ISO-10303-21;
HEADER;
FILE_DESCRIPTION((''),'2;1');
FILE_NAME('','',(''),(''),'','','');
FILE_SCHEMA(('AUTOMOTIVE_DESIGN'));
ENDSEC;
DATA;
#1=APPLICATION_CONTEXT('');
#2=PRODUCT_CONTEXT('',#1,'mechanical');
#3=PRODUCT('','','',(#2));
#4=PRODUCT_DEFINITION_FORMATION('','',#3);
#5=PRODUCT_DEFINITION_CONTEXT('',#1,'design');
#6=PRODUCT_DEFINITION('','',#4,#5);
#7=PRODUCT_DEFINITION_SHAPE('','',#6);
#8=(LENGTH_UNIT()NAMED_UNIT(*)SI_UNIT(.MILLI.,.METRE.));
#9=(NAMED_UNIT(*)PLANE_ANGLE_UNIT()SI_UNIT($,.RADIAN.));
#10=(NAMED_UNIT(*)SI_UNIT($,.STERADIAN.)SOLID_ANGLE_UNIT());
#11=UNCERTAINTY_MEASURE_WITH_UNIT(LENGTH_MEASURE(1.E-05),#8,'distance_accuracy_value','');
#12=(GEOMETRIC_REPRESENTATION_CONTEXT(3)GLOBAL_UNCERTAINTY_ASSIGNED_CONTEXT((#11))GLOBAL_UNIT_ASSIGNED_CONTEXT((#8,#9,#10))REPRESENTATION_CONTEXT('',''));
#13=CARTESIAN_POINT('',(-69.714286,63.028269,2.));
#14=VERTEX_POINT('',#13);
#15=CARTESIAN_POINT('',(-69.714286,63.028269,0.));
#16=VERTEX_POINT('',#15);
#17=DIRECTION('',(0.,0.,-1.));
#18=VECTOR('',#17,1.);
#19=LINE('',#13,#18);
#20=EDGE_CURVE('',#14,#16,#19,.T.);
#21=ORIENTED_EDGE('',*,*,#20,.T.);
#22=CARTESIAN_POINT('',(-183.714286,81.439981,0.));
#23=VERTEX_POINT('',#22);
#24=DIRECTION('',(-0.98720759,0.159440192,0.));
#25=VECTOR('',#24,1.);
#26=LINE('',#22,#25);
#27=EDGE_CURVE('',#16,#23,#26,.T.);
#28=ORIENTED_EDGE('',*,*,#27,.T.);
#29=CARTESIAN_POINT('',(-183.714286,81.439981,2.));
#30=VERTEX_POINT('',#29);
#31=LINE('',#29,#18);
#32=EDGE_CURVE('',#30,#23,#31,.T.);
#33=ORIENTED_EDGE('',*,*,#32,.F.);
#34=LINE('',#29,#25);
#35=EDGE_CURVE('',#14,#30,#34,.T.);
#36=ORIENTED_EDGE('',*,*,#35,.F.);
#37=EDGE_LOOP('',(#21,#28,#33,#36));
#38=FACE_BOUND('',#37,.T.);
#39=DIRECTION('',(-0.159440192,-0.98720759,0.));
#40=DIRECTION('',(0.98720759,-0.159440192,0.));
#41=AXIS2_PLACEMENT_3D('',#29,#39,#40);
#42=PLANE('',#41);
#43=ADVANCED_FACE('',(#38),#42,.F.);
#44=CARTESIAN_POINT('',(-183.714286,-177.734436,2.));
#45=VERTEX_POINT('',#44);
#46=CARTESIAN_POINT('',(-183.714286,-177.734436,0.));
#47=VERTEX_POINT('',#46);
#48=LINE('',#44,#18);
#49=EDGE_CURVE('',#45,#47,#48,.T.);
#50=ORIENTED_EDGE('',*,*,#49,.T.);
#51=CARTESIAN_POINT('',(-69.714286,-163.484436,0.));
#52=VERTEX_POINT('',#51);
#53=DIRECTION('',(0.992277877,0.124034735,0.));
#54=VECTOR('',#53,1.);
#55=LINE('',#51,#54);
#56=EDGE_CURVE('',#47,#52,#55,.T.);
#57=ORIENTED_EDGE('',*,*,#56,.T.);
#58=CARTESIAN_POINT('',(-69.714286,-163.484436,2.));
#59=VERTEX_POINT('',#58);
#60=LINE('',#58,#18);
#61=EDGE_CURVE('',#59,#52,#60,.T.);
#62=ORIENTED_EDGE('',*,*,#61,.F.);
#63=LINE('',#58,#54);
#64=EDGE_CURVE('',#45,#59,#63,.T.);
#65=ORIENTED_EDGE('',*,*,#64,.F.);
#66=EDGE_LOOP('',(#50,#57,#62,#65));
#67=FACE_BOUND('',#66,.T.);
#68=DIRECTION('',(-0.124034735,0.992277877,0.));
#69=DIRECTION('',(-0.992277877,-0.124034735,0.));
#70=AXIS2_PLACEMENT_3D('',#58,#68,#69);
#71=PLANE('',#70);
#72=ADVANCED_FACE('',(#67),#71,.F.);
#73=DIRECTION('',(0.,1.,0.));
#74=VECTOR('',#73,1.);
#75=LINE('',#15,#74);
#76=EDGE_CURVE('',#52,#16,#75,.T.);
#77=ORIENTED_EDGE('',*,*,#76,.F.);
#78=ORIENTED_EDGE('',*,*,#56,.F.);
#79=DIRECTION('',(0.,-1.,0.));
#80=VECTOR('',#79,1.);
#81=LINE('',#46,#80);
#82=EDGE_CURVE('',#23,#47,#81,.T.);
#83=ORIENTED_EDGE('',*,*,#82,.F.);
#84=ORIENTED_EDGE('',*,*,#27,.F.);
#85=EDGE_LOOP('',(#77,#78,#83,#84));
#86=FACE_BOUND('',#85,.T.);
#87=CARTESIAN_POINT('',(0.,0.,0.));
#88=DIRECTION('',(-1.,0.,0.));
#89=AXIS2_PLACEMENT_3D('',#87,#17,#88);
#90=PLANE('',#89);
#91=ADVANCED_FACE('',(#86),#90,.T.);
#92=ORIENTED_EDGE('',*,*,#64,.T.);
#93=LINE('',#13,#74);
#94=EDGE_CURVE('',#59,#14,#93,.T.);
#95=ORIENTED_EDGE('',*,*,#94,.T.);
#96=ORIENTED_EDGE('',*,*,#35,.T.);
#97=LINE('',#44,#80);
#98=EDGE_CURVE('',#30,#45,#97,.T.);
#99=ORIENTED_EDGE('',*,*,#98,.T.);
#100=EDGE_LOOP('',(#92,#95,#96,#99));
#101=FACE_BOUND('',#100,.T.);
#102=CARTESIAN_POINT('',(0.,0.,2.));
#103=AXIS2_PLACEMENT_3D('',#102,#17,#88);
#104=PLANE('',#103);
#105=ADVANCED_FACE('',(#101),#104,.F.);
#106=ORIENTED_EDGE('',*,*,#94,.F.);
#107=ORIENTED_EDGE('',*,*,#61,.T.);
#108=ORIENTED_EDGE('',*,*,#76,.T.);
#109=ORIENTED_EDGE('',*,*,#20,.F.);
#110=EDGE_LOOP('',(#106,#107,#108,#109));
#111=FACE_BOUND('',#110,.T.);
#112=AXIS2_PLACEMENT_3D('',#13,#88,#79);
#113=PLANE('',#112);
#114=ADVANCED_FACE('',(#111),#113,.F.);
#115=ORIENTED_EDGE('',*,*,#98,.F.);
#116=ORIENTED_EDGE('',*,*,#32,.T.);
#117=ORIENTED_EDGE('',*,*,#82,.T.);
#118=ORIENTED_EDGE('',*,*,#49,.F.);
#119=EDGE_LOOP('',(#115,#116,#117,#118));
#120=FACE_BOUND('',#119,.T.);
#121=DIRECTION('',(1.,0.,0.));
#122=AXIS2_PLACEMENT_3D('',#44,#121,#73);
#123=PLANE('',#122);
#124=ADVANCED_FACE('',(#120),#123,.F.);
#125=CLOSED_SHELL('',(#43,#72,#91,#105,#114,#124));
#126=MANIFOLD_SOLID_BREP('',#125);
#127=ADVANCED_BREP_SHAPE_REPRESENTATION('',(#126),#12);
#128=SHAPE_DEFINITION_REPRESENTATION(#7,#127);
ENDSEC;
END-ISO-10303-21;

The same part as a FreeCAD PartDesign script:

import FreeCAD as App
import Part
import Sketcher

V = App.Vector
Q = App.Units.Quantity

doc = App.newDocument("Part")
body = doc.addObject("PartDesign::Body", "Body")

# Sketch on XY plane
sketch1 = body.newObject("Sketcher::SketchObject", "Sketch")
sketch1.AttachmentSupport = (doc.getObject("XY_Plane"), [""])
sketch1.MapMode = "FlatFace"
sketch1.addGeometry([
    Part.LineSegment(V(-69.714286, -163.484436, 0), V(-69.714286, 63.028269, 0)),
    Part.LineSegment(V(-69.714286, 63.028269, 0), V(-183.714286, 81.439981, 0)),
    Part.LineSegment(V(-183.714286, 81.439981, 0), V(-183.714286, -177.734436, 0)),
    Part.LineSegment(V(-183.714286, -177.734436, 0), V(-69.714286, -163.484436, 0)),
], False)
sketch1.addConstraint([
    Sketcher.Constraint("Coincident", 0, 2, 1, 1),
    Sketcher.Constraint("Coincident", 1, 2, 2, 1),
    Sketcher.Constraint("Coincident", 2, 2, 3, 1),
    Sketcher.Constraint("Coincident", 3, 2, 0, 1),
    Sketcher.Constraint("Vertical", 0),
    Sketcher.Constraint("Vertical", 2),
    Sketcher.Constraint("DistanceX", 1, 2, 0, 2, Q("114 mm")),
    Sketcher.Constraint("DistanceY", 2, 2, 3, 2, Q("14.25 mm")),
    Sketcher.Constraint("DistanceY", 0, 1, 0, 2, Q("226.512705 mm")),
    Sketcher.Constraint("DistanceY", 2, 2, 2, 1, Q("259.174417 mm")),
    Sketcher.Constraint("DistanceY", -1, 1, 0, 2, Q("63.028269 mm")),
    Sketcher.Constraint("DistanceX", 0, 2, -1, 1, Q("69.714286 mm")),
])
pad1 = body.newObject("PartDesign::Pad", "Pad")
pad1.Profile = sketch1
pad1.Length = 2

doc.recompute()
